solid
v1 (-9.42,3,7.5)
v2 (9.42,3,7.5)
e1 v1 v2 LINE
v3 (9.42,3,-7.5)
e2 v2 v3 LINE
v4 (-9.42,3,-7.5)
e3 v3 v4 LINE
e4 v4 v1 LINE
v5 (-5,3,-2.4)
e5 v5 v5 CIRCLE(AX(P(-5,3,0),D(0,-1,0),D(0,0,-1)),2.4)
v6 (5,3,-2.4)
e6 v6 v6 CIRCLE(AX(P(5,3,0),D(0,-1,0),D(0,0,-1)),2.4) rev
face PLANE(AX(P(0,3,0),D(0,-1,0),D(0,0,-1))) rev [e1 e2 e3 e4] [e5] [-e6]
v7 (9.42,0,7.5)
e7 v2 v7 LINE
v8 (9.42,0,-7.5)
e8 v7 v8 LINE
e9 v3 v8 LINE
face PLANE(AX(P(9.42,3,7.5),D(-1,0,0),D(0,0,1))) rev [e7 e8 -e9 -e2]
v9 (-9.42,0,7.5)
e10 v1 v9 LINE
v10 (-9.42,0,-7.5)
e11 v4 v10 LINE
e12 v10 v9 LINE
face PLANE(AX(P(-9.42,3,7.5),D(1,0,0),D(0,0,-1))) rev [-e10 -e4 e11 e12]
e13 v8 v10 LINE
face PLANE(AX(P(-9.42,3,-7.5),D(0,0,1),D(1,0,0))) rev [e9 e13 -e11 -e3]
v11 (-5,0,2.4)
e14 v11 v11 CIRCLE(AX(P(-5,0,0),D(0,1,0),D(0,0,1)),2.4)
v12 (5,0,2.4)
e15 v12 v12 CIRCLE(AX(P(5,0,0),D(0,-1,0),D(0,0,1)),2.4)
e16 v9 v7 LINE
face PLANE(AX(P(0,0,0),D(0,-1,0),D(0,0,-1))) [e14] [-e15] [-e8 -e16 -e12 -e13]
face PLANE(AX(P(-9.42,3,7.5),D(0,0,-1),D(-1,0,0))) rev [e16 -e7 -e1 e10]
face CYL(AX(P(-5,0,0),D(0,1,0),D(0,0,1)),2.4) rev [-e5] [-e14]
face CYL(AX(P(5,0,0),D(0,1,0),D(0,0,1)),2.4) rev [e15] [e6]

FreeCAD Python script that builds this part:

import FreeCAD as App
import Part
import Sketcher

doc = App.newDocument("Part")
body = doc.addObject("PartDesign::Body", "Body")

# Sketch on XZ plane
sketch1 = doc.addObject("Sketcher::SketchObject", "Sketch")
body.addObject(sketch1)
sketch1.AttachmentSupport = (doc.XZ_Plane, [""])
sketch1.MapMode = "FlatFace"
sketch1.addGeometry([
    Part.LineSegment(App.Vector(-9.42, -7.5, 0), App.Vector(-9.42, 7.5, 0)),
    Part.LineSegment(App.Vector(-9.42, 7.5, 0), App.Vector(9.42, 7.5, 0)),
    Part.LineSegment(App.Vector(9.42, 7.5, 0), App.Vector(9.42, -7.5, 0)),
    Part.LineSegment(App.Vector(9.42, -7.5, 0), App.Vector(-9.42, -7.5, 0)),
], False)
sketch1.addConstraint([
    Sketcher.Constraint("Coincident", 0, 2, 1, 1),
    Sketcher.Constraint("Coincident", 1, 2, 2, 1),
    Sketcher.Constraint("Coincident", 2, 2, 3, 1),
    Sketcher.Constraint("Coincident", 3, 2, 0, 1),
    Sketcher.Constraint("Vertical", 0),
    Sketcher.Constraint("Horizontal", 1),
    Sketcher.Constraint("Vertical", 2),
    Sketcher.Constraint("Horizontal", 3),
    Sketcher.Constraint("Symmetric", 0, 2, 2, 2, -1, 1),
    Sketcher.Constraint("DistanceY", 0, 1, 0, 2, 15.0),
    Sketcher.Constraint("DistanceX", 1, 1, 1, 2, 18.84),
])
pad1 = doc.addObject("PartDesign::Pad", "Pad")
body.addObject(pad1)
pad1.Profile = sketch1
pad1.Length = 3
pad1.Reversed = True

# Sketch on XZ plane
sketch2 = doc.addObject("Sketcher::SketchObject", "Sketch001")
body.addObject(sketch2)
sketch2.AttachmentSupport = (doc.XZ_Plane, [""])
sketch2.MapMode = "FlatFace"
sketch2.AttachmentOffset = App.Placement(App.Vector(0, 0, 1), App.Rotation())
sketch2.addGeometry(Part.Circle(App.Vector(-5, 0, 0), App.Vector(0, 0, 1), 2.4), False)
sketch2.addConstraint([
    Sketcher.Constraint("PointOnObject", 0, 3, -1),
    Sketcher.Constraint("Diameter", 0, 4.8),
    Sketcher.Constraint("DistanceX", 0, 3, -1, 1, 5.0),
])
pocket1 = doc.addObject("PartDesign::Pocket", "Pocket")
body.addObject(pocket1)
pocket1.Profile = sketch2
pocket1.Length = 5
doc.recompute()

mirrored = doc.addObject("PartDesign::Mirrored", "Mirrored")
body.addObject(mirrored)
mirrored.Originals = [pocket1]
mirrored.MirrorPlane = (doc.YZ_Plane, [""])
body.Tip = mirrored

doc.recompute()
